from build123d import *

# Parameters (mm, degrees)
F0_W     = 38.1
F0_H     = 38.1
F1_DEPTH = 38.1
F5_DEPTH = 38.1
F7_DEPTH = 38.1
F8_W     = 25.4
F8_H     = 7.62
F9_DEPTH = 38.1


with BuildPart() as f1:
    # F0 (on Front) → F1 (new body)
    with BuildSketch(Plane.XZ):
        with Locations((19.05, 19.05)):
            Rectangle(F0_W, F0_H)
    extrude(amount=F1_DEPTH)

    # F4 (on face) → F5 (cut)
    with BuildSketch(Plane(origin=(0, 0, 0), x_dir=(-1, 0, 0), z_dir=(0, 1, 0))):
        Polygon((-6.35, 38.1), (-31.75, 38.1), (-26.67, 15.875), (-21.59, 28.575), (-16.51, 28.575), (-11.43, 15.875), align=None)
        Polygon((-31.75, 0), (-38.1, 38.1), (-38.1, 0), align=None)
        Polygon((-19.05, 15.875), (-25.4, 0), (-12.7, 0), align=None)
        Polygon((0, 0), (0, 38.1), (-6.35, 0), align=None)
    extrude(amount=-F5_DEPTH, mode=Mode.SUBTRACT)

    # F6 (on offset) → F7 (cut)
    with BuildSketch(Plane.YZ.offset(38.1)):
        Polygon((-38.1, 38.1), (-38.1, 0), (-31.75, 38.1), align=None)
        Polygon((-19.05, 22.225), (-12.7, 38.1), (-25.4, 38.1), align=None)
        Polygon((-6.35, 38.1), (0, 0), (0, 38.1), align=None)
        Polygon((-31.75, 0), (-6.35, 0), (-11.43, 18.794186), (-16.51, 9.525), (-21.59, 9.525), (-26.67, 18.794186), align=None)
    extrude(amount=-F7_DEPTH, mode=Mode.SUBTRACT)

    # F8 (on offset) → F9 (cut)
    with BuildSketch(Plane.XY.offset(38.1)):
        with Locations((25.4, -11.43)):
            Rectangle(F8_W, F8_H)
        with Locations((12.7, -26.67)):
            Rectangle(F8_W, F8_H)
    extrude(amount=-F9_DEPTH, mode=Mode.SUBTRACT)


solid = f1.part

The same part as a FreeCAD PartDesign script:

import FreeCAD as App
import Part
import Sketcher

V = App.Vector
Q = App.Units.Quantity


def add_polygon(sketch, points):
    """Adds a closed chain of lines whose ends are joined by coincident constraints."""
    first, n = sketch.GeometryCount, len(points)
    for a, b in zip(points, points[1:] + points[:1]):
        sketch.addGeometry(Part.LineSegment(App.Vector(*a, 0), App.Vector(*b, 0)), False)
    for i in range(n):
        sketch.addConstraint(Sketcher.Constraint("Coincident", first + i, 2, first + (i + 1) % n, 1))

doc = App.newDocument("Part")
body = doc.addObject("PartDesign::Body", "Body")

sketch1 = doc.addObject("Sketcher::SketchObject", "Sketch")
body.addObject(sketch1)
sketch1.AttachmentSupport = (doc.XZ_Plane, [""])
sketch1.MapMode = "FlatFace"
add_polygon(sketch1, [(0, 38), (0, 0), (38, 0), (38, 38)])
sketch1.addConstraint([
    Sketcher.Constraint("Vertical", 0),
    Sketcher.Constraint("Horizontal", 1),
    Sketcher.Constraint("Vertical", 2),
    Sketcher.Constraint("Horizontal", 3),
    Sketcher.Constraint("Coincident", 0, 2, -1, 1),
    Sketcher.Constraint("Equal", 3, 0),
    Sketcher.Constraint("DistanceX", 1, 1, 1, 2, Q("1.5 in")),
])
pad1 = doc.addObject("PartDesign::Pad", "Pad")
body.addObject(pad1)
pad1.Profile = sketch1
pad1.Length = Q("1.5 in")

sketch2 = doc.addObject("Sketcher::SketchObject", "Sketch001")
body.addObject(sketch2)
sketch2.AttachmentSupport = (doc.XZ_Plane, [""])
sketch2.MapMode = "FlatFace"
add_polygon(sketch2, [(6, 38), (32, 38), (27, 16), (22, 29), (17, 29), (11, 16)])
add_polygon(sketch2, [(32, 0), (38, 38), (38, 0)])
add_polygon(sketch2, [(19, 16), (25, 0), (13, 0)])
add_polygon(sketch2, [(0, 0), (0, 38), (6, 0)])
sketch2.addConstraint([
    Sketcher.Constraint("Horizontal", 0),
    Sketcher.Constraint("Horizontal", 3),
    Sketcher.Constraint("Vertical", 7),
    Sketcher.Constraint("Horizontal", 8),
    Sketcher.Constraint("Horizontal", 10),
    Sketcher.Constraint("Vertical", 12),
    Sketcher.Constraint("Horizontal", 14),
    Sketcher.Constraint("Coincident", 14, 2, -1, 1),
    Sketcher.Constraint("PointOnObject", 7, 2, -1),
    Sketcher.Constraint("PointOnObject", 9, 2, -1),
    Sketcher.Constraint("Parallel", 2, 9),
    Sketcher.Constraint("Parallel", 4, 11),
    Sketcher.Constraint("Horizontal", 1, 2, 4, 2),
    Sketcher.Constraint("Horizontal", 5, 2, 6, 2),
    Sketcher.Constraint("Horizontal", 4, 2, 11, 2),
    Sketcher.Constraint("Horizontal", 6, 2, 12, 2),
    Sketcher.Constraint("Vertical", 0, 2, 8, 2),
    Sketcher.Constraint("Vertical", 5, 2, 13, 2),
    Sketcher.Constraint("Equal", 8, 14),
    Sketcher.Constraint("Equal", 2, 4),
    Sketcher.Constraint("Equal", 1, 5),
    Sketcher.Constraint("DistanceX", 0, 1, 0, 2, Q("1 in")),
    Sketcher.Constraint("DistanceX", 3, 2, 3, 1, Q("0.2 in")),
    Sketcher.Constraint("DistanceX", 10, 2, 10, 1, Q("0.5 in")),
    Sketcher.Constraint("DistanceY", 7, 2, 7, 1, Q("1.5 in")),
    Sketcher.Constraint("DistanceX", -1, 1, 9, 2, Q("1 in")),
    Sketcher.Constraint("DistanceX", 10, 2, 7, 2, Q("1 in")),
    Sketcher.Constraint("DistanceX", 1, 2, 0, 2, Q("0.2 in")),
    Sketcher.Constraint("DistanceY", 1, 2, 2, 2, Q("0.5 in")),
])
pocket1 = doc.addObject("PartDesign::Pocket", "Pocket")
body.addObject(pocket1)
pocket1.Profile = sketch2
pocket1.Length = Q("1.5 in")
pocket1.Reversed = True

sketch3 = doc.addObject("Sketcher::SketchObject", "Sketch002")
body.addObject(sketch3)
sketch3.AttachmentSupport = (doc.YZ_Plane, [""])
sketch3.MapMode = "FlatFace"
sketch3.AttachmentOffset = App.Placement(V(0, 0, 1.5 * 25.4), App.Rotation())
add_polygon(sketch3, [(-38, 38), (-38, 0), (-32, 38)])
add_polygon(sketch3, [(-19, 22), (-13, 38), (-25, 38)])
add_polygon(sketch3, [(-6, 38), (0, 0), (0, 38)])
add_polygon(sketch3, [(-32, 0), (-6, 0), (-11, 19), (-17, 10), (-22, 10), (-27, 19)])
sketch3.addConstraint([
    Sketcher.Constraint("Vertical", 0),
    Sketcher.Constraint("Horizontal", 2),
    Sketcher.Constraint("Horizontal", 4),
    Sketcher.Constraint("Vertical", 7),
    Sketcher.Constraint("Horizontal", 8),
    Sketcher.Constraint("Horizontal", 9),
    Sketcher.Constraint("Horizontal", 12),
    Sketcher.Constraint("Coincident", 6, 2, -1, 1),
    Sketcher.Constraint("PointOnObject", 0, 2, -1),
    Sketcher.Constraint("PointOnObject", 9, 2, -1),
    Sketcher.Constraint("Horizontal", 2, 2, 3, 2),
    Sketcher.Constraint("Horizontal", 4, 2, 7, 2),
    Sketcher.Constraint("Horizontal", 10, 2, 13, 2),
    Sketcher.Constraint("Vertical", 8, 2, 9, 2),
    Sketcher.Constraint("Vertical", 1, 2, 14, 2),
    Sketcher.Constraint("Equal", 2, 8),
    Sketcher.Constraint("Equal", 3, 5),
    Sketcher.Constraint("Equal", 11, 13),
    Sketcher.Constraint("Equal", 10, 14),
    Sketcher.Constraint("DistanceX", 9, 1, 9, 2, Q("1 in")),
    Sketcher.Constraint("DistanceX", 4, 2, 4, 1, Q("0.5 in")),
    Sketcher.Constraint("DistanceX", 12, 2, 12, 1, Q("0.2 in")),
    Sketcher.Constraint("DistanceY", 0, 2, 0, 1, Q("1.5 in")),
    Sketcher.Constraint("DistanceX", 4, 2, -1, 1, Q("1 in")),
    Sketcher.Constraint("DistanceX", 2, 2, 3, 2, Q("1 in")),
    Sketcher.Constraint("DistanceX", 5, 2, 10, 2, Q("0.3 in")),
    Sketcher.Constraint("DistanceY", 11, 2, 5, 2, Q("0.5 in")),
    Sketcher.Constraint("DistanceY", -1, 1, 5, 2, Q("0.875 in")),
    Sketcher.Constraint("Distance", 10, Q("19.468637 mm")),
])
pocket2 = doc.addObject("PartDesign::Pocket", "Pocket001")
body.addObject(pocket2)
pocket2.Profile = sketch3
pocket2.Length = Q("1.5 in")

sketch4 = doc.addObject("Sketcher::SketchObject", "Sketch003")
body.addObject(sketch4)
sketch4.AttachmentSupport = (doc.XY_Plane, [""])
sketch4.MapMode = "FlatFace"
sketch4.AttachmentOffset = App.Placement(V(0, 0, 1.5 * 25.4), App.Rotation())
add_polygon(sketch4, [(13, -8), (13, -15), (38, -15), (38, -8)])
add_polygon(sketch4, [(0, -23), (0, -30), (25, -30), (25, -23)])
sketch4.addConstraint([
    Sketcher.Constraint("Vertical", 0),
    Sketcher.Constraint("Horizontal", 1),
    Sketcher.Constraint("Vertical", 2),
    Sketcher.Constraint("Horizontal", 3),
    Sketcher.Constraint("Vertical", 4),
    Sketcher.Constraint("Horizontal", 5),
    Sketcher.Constraint("Vertical", 6),
    Sketcher.Constraint("Horizontal", 7),
    Sketcher.Constraint("PointOnObject", 4, 2, -2),
    Sketcher.Constraint("Equal", 3, 5),
    Sketcher.Constraint("Equal", 2, 4),
    Sketcher.Constraint("DistanceX", 1, 1, 1, 2, Q("1 in")),
    Sketcher.Constraint("DistanceY", 0, 2, 0, 1, Q("0.3 in")),
    Sketcher.Constraint("DistanceX", -1, 1, 0, 2, Q("0.5 in")),
    Sketcher.Constraint("DistanceY", 0, 2, -1, 1, Q("0.6 in")),
    Sketcher.Constraint("DistanceY", 4, 2, -1, 1, Q("1.2 in")),
])
pocket3 = doc.addObject("PartDesign::Pocket", "Pocket002")
body.addObject(pocket3)
pocket3.Profile = sketch4
pocket3.Length = Q("1.5 in")

doc.recompute()
